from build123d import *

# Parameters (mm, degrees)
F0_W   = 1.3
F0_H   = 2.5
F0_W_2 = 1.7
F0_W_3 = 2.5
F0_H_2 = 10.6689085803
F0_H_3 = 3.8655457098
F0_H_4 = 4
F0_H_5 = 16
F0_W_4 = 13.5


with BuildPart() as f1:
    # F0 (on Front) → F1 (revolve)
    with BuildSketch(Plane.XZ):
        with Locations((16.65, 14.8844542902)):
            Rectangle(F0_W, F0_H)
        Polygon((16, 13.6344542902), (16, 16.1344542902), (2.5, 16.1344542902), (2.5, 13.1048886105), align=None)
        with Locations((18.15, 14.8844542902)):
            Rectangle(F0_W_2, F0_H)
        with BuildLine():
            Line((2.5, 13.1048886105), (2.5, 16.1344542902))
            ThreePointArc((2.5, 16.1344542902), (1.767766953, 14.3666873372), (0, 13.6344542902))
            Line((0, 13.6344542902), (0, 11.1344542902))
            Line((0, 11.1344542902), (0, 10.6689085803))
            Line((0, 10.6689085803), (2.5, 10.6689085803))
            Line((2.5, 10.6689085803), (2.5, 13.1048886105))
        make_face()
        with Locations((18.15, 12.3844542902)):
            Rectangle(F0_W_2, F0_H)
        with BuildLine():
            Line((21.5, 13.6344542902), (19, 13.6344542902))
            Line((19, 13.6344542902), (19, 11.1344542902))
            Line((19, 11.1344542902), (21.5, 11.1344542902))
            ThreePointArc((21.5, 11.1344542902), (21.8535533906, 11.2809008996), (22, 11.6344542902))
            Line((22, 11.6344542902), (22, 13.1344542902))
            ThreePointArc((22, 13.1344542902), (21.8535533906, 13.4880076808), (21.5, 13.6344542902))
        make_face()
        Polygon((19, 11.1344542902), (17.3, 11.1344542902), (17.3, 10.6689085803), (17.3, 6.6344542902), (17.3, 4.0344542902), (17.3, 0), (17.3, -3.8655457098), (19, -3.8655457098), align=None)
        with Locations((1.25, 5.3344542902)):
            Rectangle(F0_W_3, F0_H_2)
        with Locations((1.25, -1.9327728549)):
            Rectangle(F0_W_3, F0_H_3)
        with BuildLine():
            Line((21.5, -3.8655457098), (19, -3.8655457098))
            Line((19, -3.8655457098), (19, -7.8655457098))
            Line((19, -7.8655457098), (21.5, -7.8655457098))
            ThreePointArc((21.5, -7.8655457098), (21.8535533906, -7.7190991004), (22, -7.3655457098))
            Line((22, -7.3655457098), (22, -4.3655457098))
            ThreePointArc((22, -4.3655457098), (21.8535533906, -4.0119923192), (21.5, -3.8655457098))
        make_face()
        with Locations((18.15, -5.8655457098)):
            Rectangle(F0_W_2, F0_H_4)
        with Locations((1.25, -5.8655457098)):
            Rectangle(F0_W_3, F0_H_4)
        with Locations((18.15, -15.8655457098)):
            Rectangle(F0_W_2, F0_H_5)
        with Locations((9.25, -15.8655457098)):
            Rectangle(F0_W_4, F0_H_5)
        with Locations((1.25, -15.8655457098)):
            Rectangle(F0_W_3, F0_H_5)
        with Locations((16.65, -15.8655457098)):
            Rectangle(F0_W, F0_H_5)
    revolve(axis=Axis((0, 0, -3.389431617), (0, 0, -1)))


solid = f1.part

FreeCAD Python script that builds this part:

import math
import FreeCAD as App
import Part
import Sketcher


def add_polygon(sketch, points):
    """Adds a closed chain of lines whose ends are joined by coincident constraints."""
    first, n = sketch.GeometryCount, len(points)
    for a, b in zip(points, points[1:] + points[:1]):
        sketch.addGeometry(Part.LineSegment(App.Vector(*a, 0), App.Vector(*b, 0)), False)
    for i in range(n):
        sketch.addConstraint(Sketcher.Constraint("Coincident", first + i, 2, first + (i + 1) % n, 1))

doc = App.newDocument("Part")
body = doc.addObject("PartDesign::Body", "Body")

# Sketch on XZ plane
sketch1 = doc.addObject("Sketcher::SketchObject", "Sketch")
body.addObject(sketch1)
sketch1.AttachmentSupport = (doc.XZ_Plane, [""])
sketch1.MapMode = "FlatFace"
sketch1.addGeometry(Part.LineSegment(App.Vector(19, -23.9, 0), App.Vector(19, -7.9, 0)), False)  # 0
sketch1.addGeometry(Part.LineSegment(App.Vector(19, -7.9, 0), App.Vector(21.5, -7.9, 0)), False)  # 1
sketch1.addGeometry(Part.ArcOfCircle(Part.Circle(App.Vector(21.5, -7.4, 0), App.Vector(0, 0, 1), 0.5), math.radians(-90), math.radians(0)), False)  # 2
sketch1.addGeometry(Part.LineSegment(App.Vector(22, -7.4, 0), App.Vector(22, -4.4, 0)), False)  # 3
sketch1.addGeometry(Part.ArcOfCircle(Part.Circle(App.Vector(21.5, -4.4, 0), App.Vector(0, 0, 1), 0.5), math.radians(0), math.radians(90)), False)  # 4
sketch1.addGeometry(Part.LineSegment(App.Vector(21.5, -3.9, 0), App.Vector(19, -3.9, 0)), False)  # 5
sketch1.addGeometry(Part.LineSegment(App.Vector(19, -3.9, 0), App.Vector(19, 11.1, 0)), False)  # 6
sketch1.addGeometry(Part.LineSegment(App.Vector(19, 11.1, 0), App.Vector(21.5, 11.1, 0)), False)  # 7
sketch1.addGeometry(Part.ArcOfCircle(Part.Circle(App.Vector(21.5, 11.6, 0), App.Vector(0, 0, 1), 0.5), math.radians(-90), math.radians(0)), False)  # 8
sketch1.addGeometry(Part.LineSegment(App.Vector(22, 11.6, 0), App.Vector(22, 13.1, 0)), False)  # 9
sketch1.addGeometry(Part.ArcOfCircle(Part.Circle(App.Vector(21.5, 13.1, 0), App.Vector(0, 0, 1), 0.5), math.radians(0), math.radians(90)), False)  # 10
sketch1.addGeometry(Part.LineSegment(App.Vector(21.5, 13.6, 0), App.Vector(19, 13.6, 0)), False)  # 11
sketch1.addGeometry(Part.LineSegment(App.Vector(19, 13.6, 0), App.Vector(19, 16.1, 0)), False)  # 12
sketch1.addGeometry(Part.LineSegment(App.Vector(19, 16.1, 0), App.Vector(2.5, 16.1, 0)), False)  # 13
sketch1.addGeometry(Part.ArcOfCircle(Part.Circle(App.Vector(0, 16.1, 0), App.Vector(0, 0, 1), 2.5), math.radians(-90), math.radians(0)), False)  # 14
sketch1.addGeometry(Part.LineSegment(App.Vector(0, 13.6, 0), App.Vector(0, -23.9, 0)), False)  # 15
sketch1.addGeometry(Part.LineSegment(App.Vector(0, -23.9, 0), App.Vector(19, -23.9, 0)), False)  # 16
add_polygon(sketch1, [(16, 13.6), (17.3, 13.6), (17.3, -7.9), (2.5, -7.9), (2.5, 13.1)])  # lines 17-21
sketch1.addConstraint([
    Sketcher.Constraint("Coincident", 0, 2, 1, 1),
    Sketcher.Constraint("Tangent", 1, 2, 2, 1),
    Sketcher.Constraint("Tangent", 2, 2, 3, 1),
    Sketcher.Constraint("Tangent", 3, 2, 4, 1),
    Sketcher.Constraint("Tangent", 4, 2, 5, 1),
    Sketcher.Constraint("Coincident", 5, 2, 6, 1),
    Sketcher.Constraint("Coincident", 6, 2, 7, 1),
    Sketcher.Constraint("Tangent", 7, 2, 8, 1),
    Sketcher.Constraint("Tangent", 8, 2, 9, 1),
    Sketcher.Constraint("Tangent", 9, 2, 10, 1),
    Sketcher.Constraint("Tangent", 10, 2, 11, 1),
    Sketcher.Constraint("Coincident", 11, 2, 12, 1),
    Sketcher.Constraint("Coincident", 12, 2, 13, 1),
    Sketcher.Constraint("Coincident", 13, 2, 14, 2),
    Sketcher.Constraint("Coincident", 14, 1, 15, 1),
    Sketcher.Constraint("Coincident", 15, 2, 16, 1),
    Sketcher.Constraint("Coincident", 16, 2, 0, 1),
    Sketcher.Constraint("Vertical", 0),
    Sketcher.Constraint("Horizontal", 1),
    Sketcher.Constraint("Vertical", 3),
    Sketcher.Constraint("Horizontal", 5),
    Sketcher.Constraint("Vertical", 6),
    Sketcher.Constraint("Horizontal", 7),
    Sketcher.Constraint("Vertical", 9),
    Sketcher.Constraint("Horizontal", 11),
    Sketcher.Constraint("Vertical", 12),
    Sketcher.Constraint("Horizontal", 13),
    Sketcher.Constraint("Vertical", 15),
    Sketcher.Constraint("Horizontal", 16),
    Sketcher.Constraint("Horizontal", 17),
    Sketcher.Constraint("Vertical", 18),
    Sketcher.Constraint("Horizontal", 19),
    Sketcher.Constraint("Vertical", 20),
    Sketcher.Constraint("Equal", 2, 4),
    Sketcher.Constraint("Equal", 4, 8),
    Sketcher.Constraint("Equal", 8, 10),
    Sketcher.Constraint("PointOnObject", 14, 3, -2),
    Sketcher.Constraint("PointOnObject", 14, 1, -2),
    Sketcher.Constraint("Horizontal", 14, 3, 12, 2),
    Sketcher.Constraint("Horizontal", 11, 2, 14, 1),
    Sketcher.Constraint("Horizontal", 14, 1, 17, 2),
    Sketcher.Constraint("Horizontal", 1, 2, 18, 2),
    Sketcher.Constraint("Vertical", 4, 3, 8, 3),
    Sketcher.Constraint("Vertical", 0, 2, 5, 2),
    Sketcher.Constraint("Vertical", 6, 2, 11, 2),
    Sketcher.Constraint("Vertical", 13, 2, 19, 2),
    Sketcher.Constraint("Equal", 11, 12),
    Sketcher.Constraint("Radius", 2, 0.5),
    Sketcher.Constraint("Radius", 14, 2.5),
    Sketcher.Constraint("DistanceX", 16, 1, 16, 2, 19.0),
    Sketcher.Constraint("DistanceY", 0, 1, 0, 2, 16.0),
    Sketcher.Constraint("DistanceY", 3, 1, 3, 2, 3.0),
    Sketcher.Constraint("DistanceY", 6, 1, 6, 2, 15.0),
    Sketcher.Constraint("DistanceX", 17, 1, 17, 2, 1.3),
    Sketcher.Constraint("DistanceX", 19, 2, 19, 1, 14.8),
    Sketcher.Constraint("DistanceY", 9, 1, 9, 2, 1.5),
    Sketcher.Constraint("DistanceY", 20, 1, 20, 2, 20.970434),
    Sketcher.Constraint("DistanceY", -1, 1, 20, 2, 13.104889),
])
revolution = doc.addObject("PartDesign::Revolution", "Revolution")
body.addObject(revolution)
revolution.Profile = sketch1
revolution.ReferenceAxis = (sketch1, ["V_Axis"])
revolution.Angle = 360

doc.recompute()
